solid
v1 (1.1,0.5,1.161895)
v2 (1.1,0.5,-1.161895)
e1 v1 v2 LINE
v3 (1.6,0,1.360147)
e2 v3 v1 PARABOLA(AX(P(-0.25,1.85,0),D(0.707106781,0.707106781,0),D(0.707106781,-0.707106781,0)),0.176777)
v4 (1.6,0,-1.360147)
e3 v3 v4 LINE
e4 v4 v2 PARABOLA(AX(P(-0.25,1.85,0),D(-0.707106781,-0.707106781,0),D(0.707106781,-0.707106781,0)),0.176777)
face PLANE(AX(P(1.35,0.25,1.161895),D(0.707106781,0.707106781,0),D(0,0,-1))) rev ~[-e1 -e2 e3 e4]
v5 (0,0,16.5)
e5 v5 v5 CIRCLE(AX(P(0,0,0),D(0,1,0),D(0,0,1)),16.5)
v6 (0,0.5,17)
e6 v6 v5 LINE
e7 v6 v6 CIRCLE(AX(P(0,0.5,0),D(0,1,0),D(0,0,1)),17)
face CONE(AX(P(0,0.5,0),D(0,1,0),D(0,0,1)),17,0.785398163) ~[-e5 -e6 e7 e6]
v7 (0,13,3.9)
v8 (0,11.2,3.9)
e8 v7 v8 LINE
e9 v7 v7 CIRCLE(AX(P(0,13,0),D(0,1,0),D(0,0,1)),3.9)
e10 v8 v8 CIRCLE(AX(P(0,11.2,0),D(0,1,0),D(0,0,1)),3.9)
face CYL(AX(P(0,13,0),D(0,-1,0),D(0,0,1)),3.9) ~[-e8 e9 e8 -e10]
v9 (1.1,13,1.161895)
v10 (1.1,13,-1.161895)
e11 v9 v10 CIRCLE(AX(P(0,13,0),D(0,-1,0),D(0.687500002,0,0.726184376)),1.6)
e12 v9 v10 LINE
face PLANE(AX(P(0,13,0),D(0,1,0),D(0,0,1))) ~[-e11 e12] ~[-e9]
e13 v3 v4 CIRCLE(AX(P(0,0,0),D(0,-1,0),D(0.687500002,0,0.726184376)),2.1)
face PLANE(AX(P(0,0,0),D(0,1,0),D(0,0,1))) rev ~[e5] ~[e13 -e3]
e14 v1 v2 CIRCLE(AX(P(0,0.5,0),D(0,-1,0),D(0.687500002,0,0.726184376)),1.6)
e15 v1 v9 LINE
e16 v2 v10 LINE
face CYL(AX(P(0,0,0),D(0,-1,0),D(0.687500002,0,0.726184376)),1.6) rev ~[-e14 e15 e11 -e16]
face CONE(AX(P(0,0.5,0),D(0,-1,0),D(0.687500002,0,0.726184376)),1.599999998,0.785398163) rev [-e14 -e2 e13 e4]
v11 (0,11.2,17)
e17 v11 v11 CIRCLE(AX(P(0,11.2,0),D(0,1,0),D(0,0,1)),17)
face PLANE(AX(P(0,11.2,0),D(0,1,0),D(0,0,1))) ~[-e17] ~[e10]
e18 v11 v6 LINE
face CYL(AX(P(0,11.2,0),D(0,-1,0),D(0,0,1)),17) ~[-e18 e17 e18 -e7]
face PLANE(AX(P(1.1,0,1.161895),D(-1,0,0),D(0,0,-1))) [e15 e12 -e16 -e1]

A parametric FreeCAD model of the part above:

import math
import FreeCAD as App
import Part
import Sketcher
from FreeCAD import Vector
Q = App.Units.Quantity


def edges_at(feature, points):
    """Names of the edges that pass closest to the given points."""
    edges = feature.Shape.Edges
    near = lambda p: min(range(len(edges)), key=lambda i: edges[i].distToShape(Part.Vertex(*p))[0])
    return sorted({f"Edge{near(p) + 1}" for p in points})


def add_polygon(sketch, points):
    """Adds a closed chain of lines whose ends are joined by coincident constraints."""
    first, n = sketch.GeometryCount, len(points)
    for a, b in zip(points, points[1:] + points[:1]):
        sketch.addGeometry(Part.LineSegment(App.Vector(*a, 0), App.Vector(*b, 0)), False)
    for i in range(n):
        sketch.addConstraint(Sketcher.Constraint("Coincident", first + i, 2, first + (i + 1) % n, 1))

doc = App.newDocument("Part")
params = doc.addObject("Spreadsheet::Sheet", "Params")
for row, (alias, value) in enumerate([
    ("sketch1_width", "13 mm"),
    ("sketch1_height", "17 mm"),
    ("sketch1_width2", "11.2 mm"),
    ("sketch1_height2", "3.9 mm"),
    ("revolution_angle", "360 deg"),
    ("sketch2_radius", "1.6 mm"),
    ("chamfer_size", "0.5 mm"),
], start=1):
    params.set(f"A{row}", alias)
    params.set(f"B{row}", "=" + value)
    params.setAlias(f"B{row}", alias)

body = doc.addObject("PartDesign::Body", "Body")

# Sketch on YZ plane
sketch1 = body.newObject("Sketcher::SketchObject", "Sketch")
sketch1.AttachmentSupport = (doc.getObject("YZ_Plane"), [""])
sketch1.MapMode = "FlatFace"
add_polygon(sketch1, [(11.2, 17), (0, 17), (0, 0), (13, 0), (13, 3.9), (11.2, 3.9)])  # lines 0-5
sketch1.addConstraint([
    Sketcher.Constraint("Horizontal", 0),
    Sketcher.Constraint("Vertical", 1),
    Sketcher.Constraint("Horizontal", 2),
    Sketcher.Constraint("Vertical", 3),
    Sketcher.Constraint("Horizontal", 4),
    Sketcher.Constraint("Vertical", 5),
    Sketcher.Constraint("Coincident", 1, 2, -1, 1),
    Sketcher.Constraint("DistanceX", 2, 1, 2, 2, Q("13 mm")),
    Sketcher.Constraint("DistanceY", 1, 2, 1, 1, Q("17 mm")),
    Sketcher.Constraint("DistanceX", 0, 2, 0, 1, Q("11.2 mm")),
    Sketcher.Constraint("DistanceY", 3, 1, 3, 2, Q("3.9 mm")),
])
sketch1.setExpression("Constraints[13]", "Params.sketch1_width")
sketch1.setExpression("Constraints[14]", "Params.sketch1_height")
sketch1.setExpression("Constraints[15]", "Params.sketch1_width2")
sketch1.setExpression("Constraints[16]", "Params.sketch1_height2")
revolution = body.newObject("PartDesign::Revolution", "Revolution")
revolution.Profile = sketch1
revolution.ReferenceAxis = (sketch1, ["H_Axis"])
revolution.setExpression("Angle", "Params.revolution_angle")

# Sketch on XZ plane
sketch2 = body.newObject("Sketcher::SketchObject", "Sketch001")
sketch2.AttachmentSupport = (doc.getObject("XZ_Plane"), [""])
sketch2.MapMode = "FlatFace"
sketch2.addGeometry([
    Part.ArcOfCircle(Part.Circle(Vector(0, 0, 0), Vector(0, 0, 1), 1.6), math.radians(46.567463), math.radians(313.432537)),
    Part.LineSegment(Vector(1.1, -1.161895, 0), Vector(1.1, 1.161895, 0)),
], False)
sketch2.addConstraint([
    Sketcher.Constraint("Coincident", 0, 1, 1, 2),
    Sketcher.Constraint("Coincident", 1, 1, 0, 2),
    Sketcher.Constraint("Vertical", 1),
    Sketcher.Constraint("Coincident", 0, 3, -1, 1),
    Sketcher.Constraint("Radius", 0, Q("1.6 mm")),
    Sketcher.Constraint("DistanceX", -1, 1, 0, 1, Q("1.1 mm")),
])
sketch2.setExpression("Constraints[4]", "Params.sketch2_radius")
pocket1 = body.newObject("PartDesign::Pocket", "Pocket")
pocket1.Profile = sketch2
pocket1.Type = "ThroughAll"
doc.recompute()

chamfer = body.newObject("PartDesign::Chamfer", "Chamfer")
chamfer.Base = (pocket1, edges_at(pocket1, [(0, 0, -17), (1.1, 0, 0), (-1.6, 0, 0)]))
chamfer.setExpression("Size", "Params.chamfer_size")

doc.recompute()
